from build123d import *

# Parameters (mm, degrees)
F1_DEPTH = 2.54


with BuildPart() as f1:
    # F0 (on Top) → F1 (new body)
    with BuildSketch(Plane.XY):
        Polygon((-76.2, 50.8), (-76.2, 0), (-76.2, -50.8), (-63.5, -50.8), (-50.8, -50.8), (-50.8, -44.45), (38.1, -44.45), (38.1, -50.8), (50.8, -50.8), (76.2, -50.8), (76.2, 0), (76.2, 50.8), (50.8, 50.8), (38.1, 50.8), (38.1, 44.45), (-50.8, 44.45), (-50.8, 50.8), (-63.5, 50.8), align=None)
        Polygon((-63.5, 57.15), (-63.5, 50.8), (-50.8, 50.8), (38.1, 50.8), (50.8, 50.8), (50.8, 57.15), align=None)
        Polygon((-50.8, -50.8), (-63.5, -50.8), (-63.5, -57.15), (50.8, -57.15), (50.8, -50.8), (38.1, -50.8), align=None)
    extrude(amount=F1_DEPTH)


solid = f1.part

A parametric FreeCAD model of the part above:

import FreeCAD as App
import Part
import Sketcher

V = App.Vector
Q = App.Units.Quantity


def add_polygon(sketch, points):
    """Adds a closed chain of lines whose ends are joined by coincident constraints."""
    first, n = sketch.GeometryCount, len(points)
    for a, b in zip(points, points[1:] + points[:1]):
        sketch.addGeometry(Part.LineSegment(App.Vector(*a, 0), App.Vector(*b, 0)), False)
    for i in range(n):
        sketch.addConstraint(Sketcher.Constraint("Coincident", first + i, 2, first + (i + 1) % n, 1))

doc = App.newDocument("Part")
body = doc.addObject("PartDesign::Body", "Body")

sketch1 = body.newObject("Sketcher::SketchObject", "Sketch")
sketch1.AttachmentSupport = (doc.getObject("XY_Plane"), [""])
sketch1.MapMode = "FlatFace"
add_polygon(sketch1, [(-76.2, 50.8), (-76.2, -50.8), (-63.5, -50.8), (-63.5, -57.15), (50.8, -57.15), (50.8, -50.8), (76.2, -50.8), (76.2, 50.8), (50.8, 50.8), (50.8, 57.15), (-63.5, 57.15), (-63.5, 50.8)])
add_polygon(sketch1, [(-50.8, -50.8), (-50.8, -44.45), (38.1, -44.45), (38.1, -50.8)])
add_polygon(sketch1, [(38.1, 50.8), (38.1, 44.45), (-50.8, 44.45), (-50.8, 50.8)])
sketch1.addConstraint([
    Sketcher.Constraint("Vertical", 0),
    Sketcher.Constraint("Horizontal", 1),
    Sketcher.Constraint("Vertical", 2),
    Sketcher.Constraint("Horizontal", 3),
    Sketcher.Constraint("Vertical", 4),
    Sketcher.Constraint("Horizontal", 5),
    Sketcher.Constraint("Vertical", 6),
    Sketcher.Constraint("Horizontal", 7),
    Sketcher.Constraint("Vertical", 8),
    Sketcher.Constraint("Horizontal", 9),
    Sketcher.Constraint("Vertical", 10),
    Sketcher.Constraint("Horizontal", 11),
    Sketcher.Constraint("Vertical", 12),
    Sketcher.Constraint("Horizontal", 13),
    Sketcher.Constraint("Vertical", 14),
    Sketcher.Constraint("Horizontal", 15),
    Sketcher.Constraint("Vertical", 16),
    Sketcher.Constraint("Horizontal", 17),
    Sketcher.Constraint("Vertical", 18),
    Sketcher.Constraint("Horizontal", 19),
    Sketcher.Constraint("Symmetric", 0, 2, 6, 2, -1, 1),
    Sketcher.Constraint("Symmetric", 7, 2, 15, 2, -1, 1),
    Sketcher.Constraint("Symmetric", 4, 2, 18, 2, -1, 1),
    Sketcher.Constraint("Symmetric", 4, 2, 15, 2, -2),
    Sketcher.Constraint("Symmetric", 2, 2, 9, 2, -1),
    Sketcher.Constraint("Symmetric", 13, 2, 16, 2, -1),
    Sketcher.Constraint("Horizontal", 7, 2, 10, 2),
    Sketcher.Constraint("Equal", 10, 12),
    Sketcher.Constraint("DistanceX", 5, 1, 5, 2, Q("1 in")),
    Sketcher.Constraint("DistanceY", 0, 2, 0, 1, Q("4 in")),
    Sketcher.Constraint("DistanceX", 1, 1, 1, 2, Q("0.5 in")),
    Sketcher.Constraint("DistanceX", 3, 1, 3, 2, Q("4.5 in")),
    Sketcher.Constraint("DistanceX", 13, 1, 13, 2, Q("3.5 in")),
    Sketcher.Constraint("DistanceY", 2, 2, 2, 1, Q("0.25 in")),
])
pad1 = body.newObject("PartDesign::Pad", "Pad")
pad1.Profile = sketch1
pad1.Length = Q("0.1 in")

doc.recompute()
